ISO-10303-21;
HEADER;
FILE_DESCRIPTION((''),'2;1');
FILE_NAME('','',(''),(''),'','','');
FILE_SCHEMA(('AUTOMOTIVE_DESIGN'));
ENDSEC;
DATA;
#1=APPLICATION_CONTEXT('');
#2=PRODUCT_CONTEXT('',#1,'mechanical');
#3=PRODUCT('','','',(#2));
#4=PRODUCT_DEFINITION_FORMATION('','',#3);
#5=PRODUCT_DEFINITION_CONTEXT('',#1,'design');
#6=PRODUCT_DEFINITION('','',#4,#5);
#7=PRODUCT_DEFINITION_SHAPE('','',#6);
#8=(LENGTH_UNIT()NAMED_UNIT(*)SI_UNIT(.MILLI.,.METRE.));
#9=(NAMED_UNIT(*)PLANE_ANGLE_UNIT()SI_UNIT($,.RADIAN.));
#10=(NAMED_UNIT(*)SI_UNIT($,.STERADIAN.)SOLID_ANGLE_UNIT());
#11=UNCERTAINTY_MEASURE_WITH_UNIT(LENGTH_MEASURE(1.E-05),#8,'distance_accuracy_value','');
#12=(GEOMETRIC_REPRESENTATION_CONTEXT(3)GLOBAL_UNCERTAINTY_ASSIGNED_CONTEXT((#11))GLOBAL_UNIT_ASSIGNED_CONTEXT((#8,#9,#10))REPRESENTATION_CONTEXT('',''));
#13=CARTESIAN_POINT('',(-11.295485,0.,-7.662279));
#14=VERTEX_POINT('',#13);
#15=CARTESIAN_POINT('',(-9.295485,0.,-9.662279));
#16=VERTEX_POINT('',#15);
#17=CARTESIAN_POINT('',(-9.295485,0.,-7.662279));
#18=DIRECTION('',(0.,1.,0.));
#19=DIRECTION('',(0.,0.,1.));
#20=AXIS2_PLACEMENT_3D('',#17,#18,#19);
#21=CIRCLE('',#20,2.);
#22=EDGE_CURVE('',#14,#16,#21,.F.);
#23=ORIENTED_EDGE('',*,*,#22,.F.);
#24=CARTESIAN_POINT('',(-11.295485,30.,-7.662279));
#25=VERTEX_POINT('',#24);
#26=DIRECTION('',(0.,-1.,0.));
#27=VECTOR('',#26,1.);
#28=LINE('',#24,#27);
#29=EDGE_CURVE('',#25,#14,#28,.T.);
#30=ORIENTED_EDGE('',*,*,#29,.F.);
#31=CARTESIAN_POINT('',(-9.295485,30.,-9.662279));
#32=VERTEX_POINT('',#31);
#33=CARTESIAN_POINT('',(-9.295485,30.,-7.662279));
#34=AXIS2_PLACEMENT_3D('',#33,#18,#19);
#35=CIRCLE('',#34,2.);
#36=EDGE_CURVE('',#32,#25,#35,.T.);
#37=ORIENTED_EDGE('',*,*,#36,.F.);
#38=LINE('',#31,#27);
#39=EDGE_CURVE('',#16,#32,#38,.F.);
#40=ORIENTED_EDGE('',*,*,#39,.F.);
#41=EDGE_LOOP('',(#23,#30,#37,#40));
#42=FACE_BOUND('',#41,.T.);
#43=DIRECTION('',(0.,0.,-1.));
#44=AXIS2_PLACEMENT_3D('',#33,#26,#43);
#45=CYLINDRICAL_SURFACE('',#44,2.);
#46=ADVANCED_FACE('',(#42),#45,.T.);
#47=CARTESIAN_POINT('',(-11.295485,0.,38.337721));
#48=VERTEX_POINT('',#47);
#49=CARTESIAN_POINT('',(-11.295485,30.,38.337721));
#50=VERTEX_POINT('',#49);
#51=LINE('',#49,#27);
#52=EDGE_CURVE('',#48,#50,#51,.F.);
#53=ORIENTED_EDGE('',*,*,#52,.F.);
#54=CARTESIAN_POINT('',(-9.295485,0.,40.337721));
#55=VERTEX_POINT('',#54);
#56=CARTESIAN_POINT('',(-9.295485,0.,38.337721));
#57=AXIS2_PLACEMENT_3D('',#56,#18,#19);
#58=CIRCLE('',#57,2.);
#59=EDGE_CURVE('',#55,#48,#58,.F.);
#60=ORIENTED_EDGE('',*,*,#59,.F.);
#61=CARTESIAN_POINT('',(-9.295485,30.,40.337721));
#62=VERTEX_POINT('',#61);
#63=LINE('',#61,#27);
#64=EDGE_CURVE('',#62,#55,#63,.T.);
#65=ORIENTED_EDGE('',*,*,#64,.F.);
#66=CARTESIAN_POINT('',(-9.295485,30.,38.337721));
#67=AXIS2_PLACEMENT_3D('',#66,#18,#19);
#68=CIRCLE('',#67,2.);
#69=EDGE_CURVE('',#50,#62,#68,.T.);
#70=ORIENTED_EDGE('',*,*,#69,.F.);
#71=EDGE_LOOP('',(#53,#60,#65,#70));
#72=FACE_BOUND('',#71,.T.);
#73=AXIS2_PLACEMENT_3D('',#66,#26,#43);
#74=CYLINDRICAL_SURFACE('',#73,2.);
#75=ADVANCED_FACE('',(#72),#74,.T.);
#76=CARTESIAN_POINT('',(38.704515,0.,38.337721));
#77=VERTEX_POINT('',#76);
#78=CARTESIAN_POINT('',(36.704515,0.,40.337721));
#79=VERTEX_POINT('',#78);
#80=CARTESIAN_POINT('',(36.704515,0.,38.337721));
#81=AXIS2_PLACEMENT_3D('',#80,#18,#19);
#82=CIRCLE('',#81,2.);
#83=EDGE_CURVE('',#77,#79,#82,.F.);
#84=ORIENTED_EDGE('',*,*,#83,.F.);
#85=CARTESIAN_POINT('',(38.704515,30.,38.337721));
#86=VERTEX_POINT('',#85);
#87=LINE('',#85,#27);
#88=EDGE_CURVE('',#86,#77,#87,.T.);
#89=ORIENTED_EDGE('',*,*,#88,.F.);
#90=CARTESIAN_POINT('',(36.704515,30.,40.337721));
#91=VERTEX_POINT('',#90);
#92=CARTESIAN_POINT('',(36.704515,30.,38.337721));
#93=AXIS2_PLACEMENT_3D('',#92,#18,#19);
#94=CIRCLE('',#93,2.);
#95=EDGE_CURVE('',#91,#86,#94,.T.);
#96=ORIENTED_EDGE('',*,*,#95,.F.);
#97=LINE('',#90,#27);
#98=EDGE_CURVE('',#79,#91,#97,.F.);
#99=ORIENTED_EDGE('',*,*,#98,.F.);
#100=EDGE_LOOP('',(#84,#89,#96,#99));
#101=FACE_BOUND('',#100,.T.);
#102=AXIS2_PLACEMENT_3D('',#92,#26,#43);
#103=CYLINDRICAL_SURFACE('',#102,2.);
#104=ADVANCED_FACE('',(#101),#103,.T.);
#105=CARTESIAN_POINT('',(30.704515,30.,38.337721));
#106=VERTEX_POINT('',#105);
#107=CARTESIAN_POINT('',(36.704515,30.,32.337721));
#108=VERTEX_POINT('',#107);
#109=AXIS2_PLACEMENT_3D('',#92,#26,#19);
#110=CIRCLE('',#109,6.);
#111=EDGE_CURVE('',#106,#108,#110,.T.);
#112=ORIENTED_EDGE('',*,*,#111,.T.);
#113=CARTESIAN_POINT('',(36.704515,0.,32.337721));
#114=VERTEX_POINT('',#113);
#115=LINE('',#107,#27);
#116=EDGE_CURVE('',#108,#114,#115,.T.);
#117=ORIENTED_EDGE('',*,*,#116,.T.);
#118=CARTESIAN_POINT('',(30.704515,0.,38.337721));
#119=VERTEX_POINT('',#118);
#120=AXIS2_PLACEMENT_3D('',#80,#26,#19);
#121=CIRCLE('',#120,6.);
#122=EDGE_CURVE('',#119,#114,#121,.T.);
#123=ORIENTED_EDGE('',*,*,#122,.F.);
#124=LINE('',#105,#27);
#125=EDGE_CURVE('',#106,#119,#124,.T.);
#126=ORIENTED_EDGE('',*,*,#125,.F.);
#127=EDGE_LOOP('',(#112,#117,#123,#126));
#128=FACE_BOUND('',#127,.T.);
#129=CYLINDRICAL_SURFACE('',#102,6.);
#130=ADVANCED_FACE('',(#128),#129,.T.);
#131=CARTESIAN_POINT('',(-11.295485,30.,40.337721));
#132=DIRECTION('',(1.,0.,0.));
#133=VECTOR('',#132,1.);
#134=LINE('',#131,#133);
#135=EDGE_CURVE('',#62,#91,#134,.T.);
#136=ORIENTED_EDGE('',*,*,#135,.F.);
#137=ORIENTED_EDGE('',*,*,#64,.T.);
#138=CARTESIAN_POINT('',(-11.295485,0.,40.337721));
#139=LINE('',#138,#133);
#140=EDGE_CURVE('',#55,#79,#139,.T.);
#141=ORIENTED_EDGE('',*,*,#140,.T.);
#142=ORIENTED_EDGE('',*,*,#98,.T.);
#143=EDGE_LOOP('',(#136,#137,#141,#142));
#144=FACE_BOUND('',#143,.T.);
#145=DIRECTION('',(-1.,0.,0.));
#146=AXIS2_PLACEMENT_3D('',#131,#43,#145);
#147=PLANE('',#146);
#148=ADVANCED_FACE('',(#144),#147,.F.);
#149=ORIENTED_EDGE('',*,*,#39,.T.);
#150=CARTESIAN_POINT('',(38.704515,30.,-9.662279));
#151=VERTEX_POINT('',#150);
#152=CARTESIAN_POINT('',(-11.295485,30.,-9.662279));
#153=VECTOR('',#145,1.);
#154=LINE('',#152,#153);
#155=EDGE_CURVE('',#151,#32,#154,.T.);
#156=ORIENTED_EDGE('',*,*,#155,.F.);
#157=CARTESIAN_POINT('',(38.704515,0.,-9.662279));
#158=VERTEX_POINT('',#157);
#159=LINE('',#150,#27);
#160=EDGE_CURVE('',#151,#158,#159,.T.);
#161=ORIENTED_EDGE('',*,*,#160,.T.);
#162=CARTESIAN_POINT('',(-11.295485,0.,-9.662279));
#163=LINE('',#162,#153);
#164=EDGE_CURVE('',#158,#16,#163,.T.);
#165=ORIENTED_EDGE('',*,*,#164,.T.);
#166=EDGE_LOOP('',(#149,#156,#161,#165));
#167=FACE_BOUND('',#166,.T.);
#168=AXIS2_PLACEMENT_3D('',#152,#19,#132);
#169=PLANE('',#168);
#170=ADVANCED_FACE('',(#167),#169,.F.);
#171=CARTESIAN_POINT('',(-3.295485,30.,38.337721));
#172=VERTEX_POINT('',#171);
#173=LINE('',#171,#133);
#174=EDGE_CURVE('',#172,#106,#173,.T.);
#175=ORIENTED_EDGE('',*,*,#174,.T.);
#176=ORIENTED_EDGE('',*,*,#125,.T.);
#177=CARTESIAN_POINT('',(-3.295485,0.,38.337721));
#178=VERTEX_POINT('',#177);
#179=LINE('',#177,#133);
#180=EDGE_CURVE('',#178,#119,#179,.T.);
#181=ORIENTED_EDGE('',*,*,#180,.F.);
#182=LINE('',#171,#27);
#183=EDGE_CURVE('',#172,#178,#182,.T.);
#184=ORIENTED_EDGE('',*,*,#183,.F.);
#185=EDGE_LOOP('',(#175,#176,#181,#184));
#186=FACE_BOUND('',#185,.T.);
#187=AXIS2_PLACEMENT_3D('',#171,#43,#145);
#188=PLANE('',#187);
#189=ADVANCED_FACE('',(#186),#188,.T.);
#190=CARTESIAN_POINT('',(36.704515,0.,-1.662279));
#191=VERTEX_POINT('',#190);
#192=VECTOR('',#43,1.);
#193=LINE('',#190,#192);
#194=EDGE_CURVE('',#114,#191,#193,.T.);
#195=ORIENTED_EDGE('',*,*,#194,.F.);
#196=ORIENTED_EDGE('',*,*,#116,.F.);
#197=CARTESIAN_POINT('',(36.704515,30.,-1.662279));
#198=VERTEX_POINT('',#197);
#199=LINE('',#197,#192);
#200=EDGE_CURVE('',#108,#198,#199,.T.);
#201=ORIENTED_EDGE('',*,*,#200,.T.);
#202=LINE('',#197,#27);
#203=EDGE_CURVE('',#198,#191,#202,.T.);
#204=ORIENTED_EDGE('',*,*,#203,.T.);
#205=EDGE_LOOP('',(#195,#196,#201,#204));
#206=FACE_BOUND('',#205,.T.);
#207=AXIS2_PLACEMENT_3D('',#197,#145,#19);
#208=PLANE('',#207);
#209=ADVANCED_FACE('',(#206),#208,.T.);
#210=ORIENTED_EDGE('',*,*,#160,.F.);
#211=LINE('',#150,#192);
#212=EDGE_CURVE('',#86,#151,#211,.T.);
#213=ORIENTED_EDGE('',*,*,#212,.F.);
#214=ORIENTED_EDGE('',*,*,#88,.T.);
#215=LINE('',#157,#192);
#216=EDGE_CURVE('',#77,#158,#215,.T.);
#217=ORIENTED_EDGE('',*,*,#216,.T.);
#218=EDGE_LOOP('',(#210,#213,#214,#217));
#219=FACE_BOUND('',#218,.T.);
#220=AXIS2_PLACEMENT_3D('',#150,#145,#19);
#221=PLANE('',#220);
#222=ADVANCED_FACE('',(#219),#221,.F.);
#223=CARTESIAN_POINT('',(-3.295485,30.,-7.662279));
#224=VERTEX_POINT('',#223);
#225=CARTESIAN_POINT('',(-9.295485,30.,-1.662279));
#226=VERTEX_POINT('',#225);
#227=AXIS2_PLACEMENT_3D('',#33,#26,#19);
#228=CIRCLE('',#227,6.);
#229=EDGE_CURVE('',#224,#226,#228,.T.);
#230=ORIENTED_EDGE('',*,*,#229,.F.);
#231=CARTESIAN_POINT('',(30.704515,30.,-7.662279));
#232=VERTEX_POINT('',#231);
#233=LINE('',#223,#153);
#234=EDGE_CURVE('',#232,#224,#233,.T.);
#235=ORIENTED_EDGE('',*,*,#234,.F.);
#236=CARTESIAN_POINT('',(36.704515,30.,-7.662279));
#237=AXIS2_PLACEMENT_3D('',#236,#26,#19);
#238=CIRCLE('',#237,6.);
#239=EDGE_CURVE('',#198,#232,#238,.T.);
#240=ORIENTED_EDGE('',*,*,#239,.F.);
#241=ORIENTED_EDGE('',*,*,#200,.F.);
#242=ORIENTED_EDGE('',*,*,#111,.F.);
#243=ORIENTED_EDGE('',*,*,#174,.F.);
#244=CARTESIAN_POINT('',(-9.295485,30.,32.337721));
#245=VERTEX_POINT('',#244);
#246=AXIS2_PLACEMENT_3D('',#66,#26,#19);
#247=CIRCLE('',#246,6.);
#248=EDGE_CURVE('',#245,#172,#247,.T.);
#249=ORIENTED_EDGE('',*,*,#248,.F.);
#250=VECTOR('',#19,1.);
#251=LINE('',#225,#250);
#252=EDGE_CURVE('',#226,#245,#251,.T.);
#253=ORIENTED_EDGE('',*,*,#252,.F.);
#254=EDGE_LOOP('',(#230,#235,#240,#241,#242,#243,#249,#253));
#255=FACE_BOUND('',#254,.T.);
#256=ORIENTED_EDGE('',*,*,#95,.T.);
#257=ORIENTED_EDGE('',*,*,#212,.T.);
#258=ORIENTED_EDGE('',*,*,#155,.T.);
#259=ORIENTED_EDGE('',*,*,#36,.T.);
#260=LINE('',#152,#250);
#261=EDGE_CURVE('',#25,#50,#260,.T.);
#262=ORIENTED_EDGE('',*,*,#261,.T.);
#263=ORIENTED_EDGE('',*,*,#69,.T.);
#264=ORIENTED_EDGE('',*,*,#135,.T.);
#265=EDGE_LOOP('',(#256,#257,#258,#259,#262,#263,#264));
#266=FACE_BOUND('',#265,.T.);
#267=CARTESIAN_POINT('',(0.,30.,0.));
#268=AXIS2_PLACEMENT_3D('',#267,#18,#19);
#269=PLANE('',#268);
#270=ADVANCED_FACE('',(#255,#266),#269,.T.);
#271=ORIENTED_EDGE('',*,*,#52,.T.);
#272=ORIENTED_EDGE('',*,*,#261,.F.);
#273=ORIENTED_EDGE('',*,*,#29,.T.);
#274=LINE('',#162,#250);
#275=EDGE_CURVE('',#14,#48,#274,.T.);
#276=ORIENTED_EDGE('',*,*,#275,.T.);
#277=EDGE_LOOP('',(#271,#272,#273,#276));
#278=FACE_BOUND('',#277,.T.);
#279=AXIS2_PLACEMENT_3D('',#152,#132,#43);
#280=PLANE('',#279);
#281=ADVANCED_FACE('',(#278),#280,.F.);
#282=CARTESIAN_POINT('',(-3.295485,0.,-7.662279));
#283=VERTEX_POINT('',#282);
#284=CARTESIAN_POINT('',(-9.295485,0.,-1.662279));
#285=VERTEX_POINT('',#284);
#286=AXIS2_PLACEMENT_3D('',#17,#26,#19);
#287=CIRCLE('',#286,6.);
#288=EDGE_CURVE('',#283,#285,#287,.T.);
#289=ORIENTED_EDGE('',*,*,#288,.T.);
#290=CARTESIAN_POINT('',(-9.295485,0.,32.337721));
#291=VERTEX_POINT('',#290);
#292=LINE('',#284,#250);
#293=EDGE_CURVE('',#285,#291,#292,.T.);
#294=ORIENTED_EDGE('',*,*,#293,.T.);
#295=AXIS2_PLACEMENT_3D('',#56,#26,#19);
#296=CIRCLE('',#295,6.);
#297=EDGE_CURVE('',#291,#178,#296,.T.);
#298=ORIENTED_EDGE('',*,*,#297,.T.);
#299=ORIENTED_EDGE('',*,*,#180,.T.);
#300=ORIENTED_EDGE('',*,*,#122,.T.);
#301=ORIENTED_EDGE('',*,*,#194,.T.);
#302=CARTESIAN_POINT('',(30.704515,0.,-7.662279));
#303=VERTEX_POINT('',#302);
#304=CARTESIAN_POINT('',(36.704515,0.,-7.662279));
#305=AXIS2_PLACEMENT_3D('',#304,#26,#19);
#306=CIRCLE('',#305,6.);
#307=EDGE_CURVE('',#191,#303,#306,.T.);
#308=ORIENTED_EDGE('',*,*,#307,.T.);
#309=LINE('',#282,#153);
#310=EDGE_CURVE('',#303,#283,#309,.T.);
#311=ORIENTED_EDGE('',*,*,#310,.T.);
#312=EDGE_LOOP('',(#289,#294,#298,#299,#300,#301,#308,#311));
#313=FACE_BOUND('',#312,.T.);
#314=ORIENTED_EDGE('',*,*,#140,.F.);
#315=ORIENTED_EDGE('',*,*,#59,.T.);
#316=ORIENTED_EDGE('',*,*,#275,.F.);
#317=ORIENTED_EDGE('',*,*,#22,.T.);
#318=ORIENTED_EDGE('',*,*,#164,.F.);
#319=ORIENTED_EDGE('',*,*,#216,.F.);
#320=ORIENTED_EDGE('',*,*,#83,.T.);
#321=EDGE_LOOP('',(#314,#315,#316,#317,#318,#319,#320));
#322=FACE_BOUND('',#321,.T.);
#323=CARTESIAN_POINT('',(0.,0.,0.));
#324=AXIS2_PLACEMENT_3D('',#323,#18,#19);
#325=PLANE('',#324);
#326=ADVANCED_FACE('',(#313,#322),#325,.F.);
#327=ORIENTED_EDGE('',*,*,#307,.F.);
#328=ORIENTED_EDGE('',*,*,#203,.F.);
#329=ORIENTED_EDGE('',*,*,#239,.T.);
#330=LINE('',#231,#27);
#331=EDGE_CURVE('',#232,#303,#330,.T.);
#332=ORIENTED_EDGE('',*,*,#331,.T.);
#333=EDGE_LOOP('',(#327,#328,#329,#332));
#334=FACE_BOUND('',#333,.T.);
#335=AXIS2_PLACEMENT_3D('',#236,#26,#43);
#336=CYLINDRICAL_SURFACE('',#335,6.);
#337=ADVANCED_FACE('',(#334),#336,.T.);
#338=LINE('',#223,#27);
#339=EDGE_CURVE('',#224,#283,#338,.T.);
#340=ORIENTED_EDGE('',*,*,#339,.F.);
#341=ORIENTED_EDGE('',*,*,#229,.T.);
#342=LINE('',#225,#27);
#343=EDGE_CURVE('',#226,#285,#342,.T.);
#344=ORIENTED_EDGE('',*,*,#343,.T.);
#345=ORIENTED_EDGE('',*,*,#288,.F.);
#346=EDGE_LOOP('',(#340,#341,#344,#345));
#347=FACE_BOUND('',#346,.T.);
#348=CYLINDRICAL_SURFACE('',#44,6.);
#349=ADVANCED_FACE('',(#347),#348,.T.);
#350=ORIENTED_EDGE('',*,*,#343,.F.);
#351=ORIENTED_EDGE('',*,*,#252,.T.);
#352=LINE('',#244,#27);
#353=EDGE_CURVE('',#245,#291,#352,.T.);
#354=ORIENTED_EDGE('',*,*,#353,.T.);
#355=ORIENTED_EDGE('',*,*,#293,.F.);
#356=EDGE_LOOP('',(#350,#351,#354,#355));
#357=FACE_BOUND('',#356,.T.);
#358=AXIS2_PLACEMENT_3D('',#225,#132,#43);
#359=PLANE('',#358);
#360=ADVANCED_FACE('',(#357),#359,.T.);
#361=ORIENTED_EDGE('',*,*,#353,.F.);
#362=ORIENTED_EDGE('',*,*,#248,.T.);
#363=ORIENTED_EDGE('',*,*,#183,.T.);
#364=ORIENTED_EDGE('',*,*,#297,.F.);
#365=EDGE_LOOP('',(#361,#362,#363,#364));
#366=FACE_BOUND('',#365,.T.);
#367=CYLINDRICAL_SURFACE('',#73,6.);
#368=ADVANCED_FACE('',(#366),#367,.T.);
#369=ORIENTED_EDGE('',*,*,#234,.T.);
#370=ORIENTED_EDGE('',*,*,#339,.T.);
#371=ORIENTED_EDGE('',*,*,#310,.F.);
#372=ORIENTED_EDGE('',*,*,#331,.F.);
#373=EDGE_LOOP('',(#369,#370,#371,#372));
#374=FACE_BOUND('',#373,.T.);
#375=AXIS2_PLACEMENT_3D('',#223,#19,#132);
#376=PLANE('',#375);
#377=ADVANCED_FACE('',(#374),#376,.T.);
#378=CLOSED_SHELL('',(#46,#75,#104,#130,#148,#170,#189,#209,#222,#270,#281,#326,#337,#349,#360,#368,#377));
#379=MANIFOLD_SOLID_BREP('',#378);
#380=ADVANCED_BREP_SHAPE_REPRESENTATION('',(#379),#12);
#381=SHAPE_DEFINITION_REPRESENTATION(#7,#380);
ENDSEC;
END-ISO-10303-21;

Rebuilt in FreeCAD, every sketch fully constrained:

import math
import FreeCAD as App
import Part
import Sketcher
from FreeCAD import Vector


def edges_at(feature, points):
    """Names of the edges that pass closest to the given points."""
    edges = feature.Shape.Edges
    near = lambda p: min(range(len(edges)), key=lambda i: edges[i].distToShape(Part.Vertex(*p))[0])
    return sorted({f"Edge{near(p) + 1}" for p in points})

doc = App.newDocument("Part")
body = doc.addObject("PartDesign::Body", "Body")

sketch1 = body.newObject("Sketcher::SketchObject", "Sketch")
sketch1.AttachmentSupport = (doc.getObject("XZ_Plane"), [""])
sketch1.MapMode = "FlatFace"
sketch1.addGeometry([
    Part.LineSegment(Vector(-11, -10, 0), Vector(-11, 40, 0)),
    Part.LineSegment(Vector(-11, 40, 0), Vector(39, 40, 0)),
    Part.LineSegment(Vector(39, 40, 0), Vector(39, -10, 0)),
    Part.LineSegment(Vector(39, -10, 0), Vector(-11, -10, 0)),
    Part.ArcOfCircle(Part.Circle(Vector(-9, -8, 0), Vector(0, 0, 1), 6), math.radians(0), math.radians(90)),
    Part.LineSegment(Vector(-3, -8, 0), Vector(31, -8, 0)),
    Part.ArcOfCircle(Part.Circle(Vector(37, -8, 0), Vector(0, 0, 1), 6), math.radians(90), math.radians(180)),
    Part.LineSegment(Vector(37, -2, 0), Vector(37, 32, 0)),
    Part.ArcOfCircle(Part.Circle(Vector(37, 38, 0), Vector(0, 0, 1), 6), math.radians(180), math.radians(270)),
    Part.LineSegment(Vector(31, 38, 0), Vector(-3, 38, 0)),
    Part.ArcOfCircle(Part.Circle(Vector(-9, 38, 0), Vector(0, 0, 1), 6), math.radians(-90), math.radians(0)),
    Part.LineSegment(Vector(-9, 32, 0), Vector(-9, -2, 0)),
], False)
sketch1.addConstraint([
    Sketcher.Constraint("Coincident", 0, 2, 1, 1),
    Sketcher.Constraint("Coincident", 1, 2, 2, 1),
    Sketcher.Constraint("Coincident", 2, 2, 3, 1),
    Sketcher.Constraint("Coincident", 3, 2, 0, 1),
    Sketcher.Constraint("Coincident", 4, 1, 5, 1),
    Sketcher.Constraint("Coincident", 5, 2, 6, 2),
    Sketcher.Constraint("Coincident", 6, 1, 7, 1),
    Sketcher.Constraint("Coincident", 7, 2, 8, 2),
    Sketcher.Constraint("Coincident", 8, 1, 9, 1),
    Sketcher.Constraint("Coincident", 9, 2, 10, 2),
    Sketcher.Constraint("Coincident", 10, 1, 11, 1),
    Sketcher.Constraint("Coincident", 11, 2, 4, 2),
    Sketcher.Constraint("Vertical", 0),
    Sketcher.Constraint("Horizontal", 1),
    Sketcher.Constraint("Vertical", 2),
    Sketcher.Constraint("Horizontal", 3),
    Sketcher.Constraint("Horizontal", 5),
    Sketcher.Constraint("Vertical", 7),
    Sketcher.Constraint("Horizontal", 9),
    Sketcher.Constraint("Vertical", 11),
    Sketcher.Constraint("Equal", 4, 6),
    Sketcher.Constraint("Equal", 6, 8),
    Sketcher.Constraint("Equal", 8, 10),
    Sketcher.Constraint("Horizontal", 4, 3, 6, 3),
    Sketcher.Constraint("Horizontal", 8, 3, 10, 3),
    Sketcher.Constraint("Horizontal", 6, 3, 4, 1),
    Sketcher.Constraint("Horizontal", 10, 3, 8, 1),
    Sketcher.Constraint("Vertical", 6, 3, 8, 3),
    Sketcher.Constraint("Vertical", 4, 3, 10, 3),
    Sketcher.Constraint("Vertical", 8, 3, 6, 1),
    Sketcher.Constraint("Vertical", 4, 3, 10, 1),
    Sketcher.Constraint("Equal", 3, 0),
    Sketcher.Constraint("Equal", 9, 7),
    Sketcher.Constraint("Radius", 4, 6.0),
    Sketcher.Constraint("DistanceX", 1, 1, 1, 2, 50.0),
    Sketcher.Constraint("DistanceX", 5, 1, 5, 2, 34.0),
    Sketcher.Constraint("DistanceX", 0, 2, 10, 3, 2.0),
    Sketcher.Constraint("DistanceY", 10, 3, 0, 2, 2.0),
    Sketcher.Constraint("DistanceY", 4, 3, -1, 1, 7.662279),
    Sketcher.Constraint("DistanceX", 4, 3, -1, 1, 9.295485),
])
pad1 = body.newObject("PartDesign::Pad", "Pad")
pad1.Profile = sketch1
pad1.Length = 30
pad1.Reversed = True
doc.recompute()

fillet = body.newObject("PartDesign::Fillet", "Fillet")
fillet.Base = (pad1, edges_at(pad1, [(-11.295, 15, -9.662), (38.705, 15, 40.338), (-11.295, 15, 40.338)]))
fillet.Radius = 2

doc.recompute()
